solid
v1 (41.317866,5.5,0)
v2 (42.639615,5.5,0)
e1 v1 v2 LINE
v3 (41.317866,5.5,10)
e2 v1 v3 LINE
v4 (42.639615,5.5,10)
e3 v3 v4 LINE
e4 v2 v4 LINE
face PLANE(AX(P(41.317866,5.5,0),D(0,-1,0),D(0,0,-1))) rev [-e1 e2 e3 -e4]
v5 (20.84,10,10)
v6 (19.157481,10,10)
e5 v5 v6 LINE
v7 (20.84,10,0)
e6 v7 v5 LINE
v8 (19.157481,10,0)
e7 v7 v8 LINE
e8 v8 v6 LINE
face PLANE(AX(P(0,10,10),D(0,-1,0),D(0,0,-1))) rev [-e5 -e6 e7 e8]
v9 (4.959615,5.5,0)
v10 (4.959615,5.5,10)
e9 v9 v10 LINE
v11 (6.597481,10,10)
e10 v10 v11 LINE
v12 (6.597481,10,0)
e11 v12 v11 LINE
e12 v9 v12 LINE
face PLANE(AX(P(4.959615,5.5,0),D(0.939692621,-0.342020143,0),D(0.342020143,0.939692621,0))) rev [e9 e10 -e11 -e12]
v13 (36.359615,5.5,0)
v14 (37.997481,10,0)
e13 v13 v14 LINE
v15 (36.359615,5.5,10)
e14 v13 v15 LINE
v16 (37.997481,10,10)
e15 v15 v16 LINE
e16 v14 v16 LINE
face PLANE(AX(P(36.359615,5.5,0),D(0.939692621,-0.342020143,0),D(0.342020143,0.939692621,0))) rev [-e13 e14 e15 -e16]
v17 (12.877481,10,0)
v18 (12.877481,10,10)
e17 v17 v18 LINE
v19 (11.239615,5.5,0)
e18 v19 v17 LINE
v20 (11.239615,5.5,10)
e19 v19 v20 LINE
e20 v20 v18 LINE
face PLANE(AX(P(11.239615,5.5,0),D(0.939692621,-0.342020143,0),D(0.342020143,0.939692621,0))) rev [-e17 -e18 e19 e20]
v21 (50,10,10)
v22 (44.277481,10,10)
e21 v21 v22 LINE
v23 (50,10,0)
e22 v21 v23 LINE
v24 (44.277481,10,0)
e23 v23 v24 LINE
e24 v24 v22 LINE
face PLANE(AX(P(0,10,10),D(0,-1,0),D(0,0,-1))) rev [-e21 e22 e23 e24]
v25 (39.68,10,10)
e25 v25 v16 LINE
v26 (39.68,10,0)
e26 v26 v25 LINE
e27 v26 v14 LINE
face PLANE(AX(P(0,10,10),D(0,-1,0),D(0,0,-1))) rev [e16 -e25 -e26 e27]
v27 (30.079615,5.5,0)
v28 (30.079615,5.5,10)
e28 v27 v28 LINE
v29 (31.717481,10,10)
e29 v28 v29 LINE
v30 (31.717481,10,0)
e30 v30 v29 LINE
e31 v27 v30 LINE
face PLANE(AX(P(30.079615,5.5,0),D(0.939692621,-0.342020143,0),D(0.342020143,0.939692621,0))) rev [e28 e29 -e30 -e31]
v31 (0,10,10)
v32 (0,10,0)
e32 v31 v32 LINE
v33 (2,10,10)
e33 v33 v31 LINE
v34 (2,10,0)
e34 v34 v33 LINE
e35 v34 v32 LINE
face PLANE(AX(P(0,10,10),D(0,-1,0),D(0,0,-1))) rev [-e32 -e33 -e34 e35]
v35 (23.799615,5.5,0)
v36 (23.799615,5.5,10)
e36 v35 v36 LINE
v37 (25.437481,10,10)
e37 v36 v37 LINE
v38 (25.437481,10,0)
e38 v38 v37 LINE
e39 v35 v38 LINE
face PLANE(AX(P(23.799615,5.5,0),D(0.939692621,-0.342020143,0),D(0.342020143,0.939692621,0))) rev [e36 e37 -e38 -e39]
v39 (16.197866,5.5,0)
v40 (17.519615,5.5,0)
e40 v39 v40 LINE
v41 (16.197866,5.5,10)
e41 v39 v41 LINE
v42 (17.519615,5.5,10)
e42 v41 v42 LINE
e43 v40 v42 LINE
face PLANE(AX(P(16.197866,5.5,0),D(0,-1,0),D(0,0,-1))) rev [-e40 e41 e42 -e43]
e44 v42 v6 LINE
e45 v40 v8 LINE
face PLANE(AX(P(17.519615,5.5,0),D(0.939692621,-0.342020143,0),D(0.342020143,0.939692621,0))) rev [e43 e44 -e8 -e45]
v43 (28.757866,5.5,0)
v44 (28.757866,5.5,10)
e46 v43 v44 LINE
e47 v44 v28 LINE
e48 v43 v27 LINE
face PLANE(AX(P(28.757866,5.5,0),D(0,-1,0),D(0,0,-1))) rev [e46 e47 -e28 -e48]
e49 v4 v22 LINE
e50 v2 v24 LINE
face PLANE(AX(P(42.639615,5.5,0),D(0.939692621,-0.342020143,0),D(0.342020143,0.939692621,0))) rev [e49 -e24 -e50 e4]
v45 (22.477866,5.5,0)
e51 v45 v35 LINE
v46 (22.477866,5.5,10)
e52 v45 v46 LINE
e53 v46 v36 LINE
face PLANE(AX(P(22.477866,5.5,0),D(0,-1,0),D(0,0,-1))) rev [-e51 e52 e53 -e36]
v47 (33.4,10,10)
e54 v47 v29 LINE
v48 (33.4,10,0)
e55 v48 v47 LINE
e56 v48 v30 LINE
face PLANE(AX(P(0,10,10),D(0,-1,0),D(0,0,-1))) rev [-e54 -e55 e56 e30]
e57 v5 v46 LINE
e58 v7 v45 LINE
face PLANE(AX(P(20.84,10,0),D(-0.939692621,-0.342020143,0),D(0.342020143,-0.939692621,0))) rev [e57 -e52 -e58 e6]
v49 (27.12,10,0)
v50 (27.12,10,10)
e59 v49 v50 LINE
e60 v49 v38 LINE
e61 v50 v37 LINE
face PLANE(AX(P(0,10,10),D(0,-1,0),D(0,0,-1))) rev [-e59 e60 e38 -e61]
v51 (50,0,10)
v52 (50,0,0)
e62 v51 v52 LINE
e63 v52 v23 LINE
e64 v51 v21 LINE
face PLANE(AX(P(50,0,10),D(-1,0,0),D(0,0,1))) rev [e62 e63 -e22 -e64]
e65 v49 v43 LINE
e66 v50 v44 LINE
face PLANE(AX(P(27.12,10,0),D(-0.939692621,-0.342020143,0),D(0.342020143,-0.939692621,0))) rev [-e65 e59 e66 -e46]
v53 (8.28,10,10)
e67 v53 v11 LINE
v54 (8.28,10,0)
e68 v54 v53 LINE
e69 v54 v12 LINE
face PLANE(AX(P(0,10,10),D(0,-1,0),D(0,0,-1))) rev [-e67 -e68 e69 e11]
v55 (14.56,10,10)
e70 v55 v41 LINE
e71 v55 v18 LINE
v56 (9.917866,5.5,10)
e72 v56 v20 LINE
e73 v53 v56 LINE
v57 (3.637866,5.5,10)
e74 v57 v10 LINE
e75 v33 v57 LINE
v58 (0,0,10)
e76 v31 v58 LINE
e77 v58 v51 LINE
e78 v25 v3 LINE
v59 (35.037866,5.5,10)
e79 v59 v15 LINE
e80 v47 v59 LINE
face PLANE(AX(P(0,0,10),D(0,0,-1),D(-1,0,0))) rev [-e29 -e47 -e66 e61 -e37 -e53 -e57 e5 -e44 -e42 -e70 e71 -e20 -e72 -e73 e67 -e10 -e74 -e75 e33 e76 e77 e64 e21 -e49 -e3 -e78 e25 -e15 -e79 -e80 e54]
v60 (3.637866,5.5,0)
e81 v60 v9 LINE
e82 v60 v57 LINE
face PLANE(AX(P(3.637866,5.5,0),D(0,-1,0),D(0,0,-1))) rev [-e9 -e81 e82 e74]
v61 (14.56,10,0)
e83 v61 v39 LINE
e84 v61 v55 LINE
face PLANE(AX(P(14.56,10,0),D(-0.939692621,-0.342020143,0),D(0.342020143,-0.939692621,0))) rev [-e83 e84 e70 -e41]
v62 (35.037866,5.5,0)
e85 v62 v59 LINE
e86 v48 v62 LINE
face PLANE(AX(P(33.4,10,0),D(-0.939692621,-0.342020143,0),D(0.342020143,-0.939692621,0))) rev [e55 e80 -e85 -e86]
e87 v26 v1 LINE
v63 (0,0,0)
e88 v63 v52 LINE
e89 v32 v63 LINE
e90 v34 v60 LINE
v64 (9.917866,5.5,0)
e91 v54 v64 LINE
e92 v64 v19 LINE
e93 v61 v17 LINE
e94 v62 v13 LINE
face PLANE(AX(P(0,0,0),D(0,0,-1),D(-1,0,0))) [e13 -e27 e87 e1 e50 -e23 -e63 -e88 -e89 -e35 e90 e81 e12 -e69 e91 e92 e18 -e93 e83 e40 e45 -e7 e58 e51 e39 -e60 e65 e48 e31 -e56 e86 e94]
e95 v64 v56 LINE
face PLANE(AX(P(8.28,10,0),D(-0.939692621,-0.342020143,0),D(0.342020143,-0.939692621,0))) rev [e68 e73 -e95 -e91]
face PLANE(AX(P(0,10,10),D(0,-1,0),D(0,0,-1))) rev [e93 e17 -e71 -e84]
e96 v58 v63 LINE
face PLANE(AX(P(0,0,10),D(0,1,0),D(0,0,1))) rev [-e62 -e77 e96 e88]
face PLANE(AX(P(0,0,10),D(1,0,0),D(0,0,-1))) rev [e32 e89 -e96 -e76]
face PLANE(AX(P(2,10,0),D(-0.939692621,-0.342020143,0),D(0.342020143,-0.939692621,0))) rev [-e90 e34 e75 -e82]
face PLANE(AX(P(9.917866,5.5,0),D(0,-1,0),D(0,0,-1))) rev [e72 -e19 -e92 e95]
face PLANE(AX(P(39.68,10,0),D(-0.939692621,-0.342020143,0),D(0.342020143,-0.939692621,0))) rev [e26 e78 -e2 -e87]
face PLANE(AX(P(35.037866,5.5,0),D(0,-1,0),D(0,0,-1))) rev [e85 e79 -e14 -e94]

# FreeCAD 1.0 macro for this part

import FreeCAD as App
import Part
import Sketcher
from FreeCAD import Vector
Q = App.Units.Quantity


def add_polygon(sketch, points):
    """Adds a closed chain of lines whose ends are joined by coincident constraints."""
    first, n = sketch.GeometryCount, len(points)
    for a, b in zip(points, points[1:] + points[:1]):
        sketch.addGeometry(Part.LineSegment(App.Vector(*a, 0), App.Vector(*b, 0)), False)
    for i in range(n):
        sketch.addConstraint(Sketcher.Constraint("Coincident", first + i, 2, first + (i + 1) % n, 1))

doc = App.newDocument("Part")
body = doc.addObject("PartDesign::Body", "Body")

sketch1 = body.newObject("Sketcher::SketchObject", "Sketch")
sketch1.AttachmentSupport = (doc.getObject("XY_Plane"), [""])
sketch1.MapMode = "FlatFace"
add_polygon(sketch1, [(0, 10), (0, 0), (50, 0), (50, 10)])
sketch1.addConstraint([
    Sketcher.Constraint("Vertical", 0),
    Sketcher.Constraint("Horizontal", 1),
    Sketcher.Constraint("Vertical", 2),
    Sketcher.Constraint("Horizontal", 3),
    Sketcher.Constraint("Coincident", 0, 2, -1, 1),
    Sketcher.Constraint("DistanceX", 1, 1, 1, 2, 50.0),
    Sketcher.Constraint("DistanceY", 0, 2, 0, 1, 10.0),
])
pad1 = body.newObject("PartDesign::Pad", "Pad")
pad1.Profile = sketch1
pad1.Length = 10

sketch2 = body.newObject("Sketcher::SketchObject", "Sketch001")
sketch2.AttachmentSupport = (doc.getObject("XY_Plane"), [""])
sketch2.MapMode = "FlatFace"
sketch2.AttachmentOffset = App.Placement(Vector(0, 0, 10), App.Rotation())
add_polygon(sketch2, [(2, 10), (3.637866, 5.5), (4.959615, 5.5), (6.597481, 10)])
sketch2.addConstraint([
    Sketcher.Constraint("Horizontal", 1),
    Sketcher.Constraint("Horizontal", 3),
    Sketcher.Constraint("Equal", 0, 2),
    Sketcher.Constraint("Angle", 0, Q("-70 deg")),
    Sketcher.Constraint("DistanceY", -1, 1, 2, 2, 10.0),
    Sketcher.Constraint("DistanceX", -1, 1, 3, 2, 2.0),
    Sketcher.Constraint("DistanceY", -1, 1, 0, 2, 5.5),
    Sketcher.Constraint("DistanceX", 1, 1, 1, 2, 1.321749),
])
pocket1 = body.newObject("PartDesign::Pocket", "Pocket")
pocket1.Profile = sketch2
pocket1.Type = "ThroughAll"
doc.recompute()

linearpattern = body.newObject("PartDesign::LinearPattern", "LinearPattern")
linearpattern.Originals = [pocket1]
linearpattern.Direction = (doc.getObject("X_Axis"), [""])
linearpattern.Mode = "offset"
linearpattern.Offset = 6.28
linearpattern.Occurrences = 7
body.Tip = linearpattern

doc.recompute()
